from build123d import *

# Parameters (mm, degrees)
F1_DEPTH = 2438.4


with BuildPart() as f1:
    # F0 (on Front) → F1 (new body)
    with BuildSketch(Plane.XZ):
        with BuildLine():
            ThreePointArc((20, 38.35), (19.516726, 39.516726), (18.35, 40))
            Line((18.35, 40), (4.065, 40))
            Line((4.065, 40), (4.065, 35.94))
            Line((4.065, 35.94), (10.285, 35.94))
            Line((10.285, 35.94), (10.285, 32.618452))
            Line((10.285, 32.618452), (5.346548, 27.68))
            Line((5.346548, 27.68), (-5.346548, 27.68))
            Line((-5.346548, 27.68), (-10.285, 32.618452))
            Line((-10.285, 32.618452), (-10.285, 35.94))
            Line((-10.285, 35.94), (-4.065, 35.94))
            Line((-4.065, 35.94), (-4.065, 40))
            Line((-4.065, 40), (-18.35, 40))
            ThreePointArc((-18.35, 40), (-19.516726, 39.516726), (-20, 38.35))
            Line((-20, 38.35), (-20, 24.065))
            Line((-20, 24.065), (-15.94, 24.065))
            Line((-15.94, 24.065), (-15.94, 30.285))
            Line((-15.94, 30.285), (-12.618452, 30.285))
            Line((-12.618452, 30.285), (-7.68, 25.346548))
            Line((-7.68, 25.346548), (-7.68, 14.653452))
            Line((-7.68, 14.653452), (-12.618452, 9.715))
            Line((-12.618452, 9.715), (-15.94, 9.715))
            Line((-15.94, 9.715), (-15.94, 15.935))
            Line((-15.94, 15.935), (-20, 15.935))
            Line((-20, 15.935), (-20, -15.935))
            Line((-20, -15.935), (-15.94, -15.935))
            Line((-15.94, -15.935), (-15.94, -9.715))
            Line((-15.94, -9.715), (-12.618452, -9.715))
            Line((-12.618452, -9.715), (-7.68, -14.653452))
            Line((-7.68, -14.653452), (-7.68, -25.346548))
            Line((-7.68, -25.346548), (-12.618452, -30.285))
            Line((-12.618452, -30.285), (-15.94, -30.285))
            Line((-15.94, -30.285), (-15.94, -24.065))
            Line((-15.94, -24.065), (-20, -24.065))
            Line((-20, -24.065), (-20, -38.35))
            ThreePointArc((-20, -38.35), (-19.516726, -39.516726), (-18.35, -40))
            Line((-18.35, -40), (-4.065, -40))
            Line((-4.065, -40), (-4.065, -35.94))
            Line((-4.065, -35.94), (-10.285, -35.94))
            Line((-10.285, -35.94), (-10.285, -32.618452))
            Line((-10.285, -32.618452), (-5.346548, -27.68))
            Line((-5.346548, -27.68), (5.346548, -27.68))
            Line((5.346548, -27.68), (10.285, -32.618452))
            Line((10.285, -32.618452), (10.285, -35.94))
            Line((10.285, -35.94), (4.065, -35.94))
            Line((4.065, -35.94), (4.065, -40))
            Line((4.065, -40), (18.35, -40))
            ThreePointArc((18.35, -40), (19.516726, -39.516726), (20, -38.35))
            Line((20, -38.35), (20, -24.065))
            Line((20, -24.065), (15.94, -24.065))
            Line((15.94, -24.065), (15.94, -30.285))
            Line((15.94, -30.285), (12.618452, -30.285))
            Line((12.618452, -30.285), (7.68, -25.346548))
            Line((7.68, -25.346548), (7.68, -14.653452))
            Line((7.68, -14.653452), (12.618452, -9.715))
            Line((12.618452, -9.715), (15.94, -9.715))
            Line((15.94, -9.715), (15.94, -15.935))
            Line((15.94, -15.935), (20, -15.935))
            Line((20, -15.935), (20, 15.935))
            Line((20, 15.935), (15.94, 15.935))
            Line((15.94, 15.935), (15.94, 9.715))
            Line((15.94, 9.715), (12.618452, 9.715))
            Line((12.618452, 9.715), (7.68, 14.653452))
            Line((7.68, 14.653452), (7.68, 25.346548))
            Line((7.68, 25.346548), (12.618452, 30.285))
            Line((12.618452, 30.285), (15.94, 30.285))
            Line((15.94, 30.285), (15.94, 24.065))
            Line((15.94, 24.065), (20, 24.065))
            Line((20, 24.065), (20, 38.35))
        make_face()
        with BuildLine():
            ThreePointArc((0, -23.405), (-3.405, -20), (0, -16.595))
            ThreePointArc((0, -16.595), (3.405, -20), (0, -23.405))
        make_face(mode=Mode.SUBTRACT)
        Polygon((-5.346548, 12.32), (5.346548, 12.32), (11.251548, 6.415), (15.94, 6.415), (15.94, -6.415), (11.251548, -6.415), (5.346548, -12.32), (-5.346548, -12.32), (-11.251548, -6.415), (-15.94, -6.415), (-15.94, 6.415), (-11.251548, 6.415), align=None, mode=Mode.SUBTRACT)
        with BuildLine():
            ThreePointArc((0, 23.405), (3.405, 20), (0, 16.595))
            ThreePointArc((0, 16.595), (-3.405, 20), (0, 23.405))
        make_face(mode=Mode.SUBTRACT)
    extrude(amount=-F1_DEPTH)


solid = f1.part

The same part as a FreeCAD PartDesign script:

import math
import FreeCAD as App
import Part
import Sketcher
from FreeCAD import Vector
Q = App.Units.Quantity


def add_polygon(sketch, points):
    """Adds a closed chain of lines whose ends are joined by coincident constraints."""
    first, n = sketch.GeometryCount, len(points)
    for a, b in zip(points, points[1:] + points[:1]):
        sketch.addGeometry(Part.LineSegment(App.Vector(*a, 0), App.Vector(*b, 0)), False)
    for i in range(n):
        sketch.addConstraint(Sketcher.Constraint("Coincident", first + i, 2, first + (i + 1) % n, 1))

doc = App.newDocument("Part")
body = doc.addObject("PartDesign::Body", "Body")

# Sketch on XZ plane
sketch1 = doc.addObject("Sketcher::SketchObject", "Sketch")
body.addObject(sketch1)
sketch1.AttachmentSupport = (doc.XZ_Plane, [""])
sketch1.MapMode = "FlatFace"
sketch1.addGeometry(Part.ArcOfCircle(Part.Circle(Vector(18.3, 38.3, 0), Vector(0, 0, 1), 1.7), math.radians(0), math.radians(90)), False)  # 0
sketch1.addGeometry(Part.LineSegment(Vector(18.4, 40, 0), Vector(4.1, 40, 0)), False)  # 1
sketch1.addGeometry(Part.LineSegment(Vector(4.1, 40, 0), Vector(4.1, 35.9, 0)), False)  # 2
sketch1.addGeometry(Part.LineSegment(Vector(4.1, 35.9, 0), Vector(10.3, 35.9, 0)), False)  # 3
sketch1.addGeometry(Part.LineSegment(Vector(10.3, 35.9, 0), Vector(10.3, 32.6, 0)), False)  # 4
sketch1.addGeometry(Part.LineSegment(Vector(10.3, 32.6, 0), Vector(5.3, 27.7, 0)), False)  # 5
sketch1.addGeometry(Part.LineSegment(Vector(5.3, 27.7, 0), Vector(-5.3, 27.7, 0)), False)  # 6
sketch1.addGeometry(Part.LineSegment(Vector(-5.3, 27.7, 0), Vector(-10.3, 32.6, 0)), False)  # 7
sketch1.addGeometry(Part.LineSegment(Vector(-10.3, 32.6, 0), Vector(-10.3, 35.9, 0)), False)  # 8
sketch1.addGeometry(Part.LineSegment(Vector(-10.3, 35.9, 0), Vector(-4.1, 35.9, 0)), False)  # 9
sketch1.addGeometry(Part.LineSegment(Vector(-4.1, 35.9, 0), Vector(-4.1, 40, 0)), False)  # 10
sketch1.addGeometry(Part.LineSegment(Vector(-4.1, 40, 0), Vector(-18.4, 40, 0)), False)  # 11
sketch1.addGeometry(Part.ArcOfCircle(Part.Circle(Vector(-18.3, 38.3, 0), Vector(0, 0, 1), 1.7), math.radians(90), math.radians(180)), False)  # 12
sketch1.addGeometry(Part.LineSegment(Vector(-20, 38.4, 0), Vector(-20, 24.1, 0)), False)  # 13
sketch1.addGeometry(Part.LineSegment(Vector(-20, 24.1, 0), Vector(-15.9, 24.1, 0)), False)  # 14
sketch1.addGeometry(Part.LineSegment(Vector(-15.9, 24.1, 0), Vector(-15.9, 30.3, 0)), False)  # 15
sketch1.addGeometry(Part.LineSegment(Vector(-15.9, 30.3, 0), Vector(-12.6, 30.3, 0)), False)  # 16
sketch1.addGeometry(Part.LineSegment(Vector(-12.6, 30.3, 0), Vector(-7.7, 25.3, 0)), False)  # 17
sketch1.addGeometry(Part.LineSegment(Vector(-7.7, 25.3, 0), Vector(-7.7, 14.7, 0)), False)  # 18
sketch1.addGeometry(Part.LineSegment(Vector(-7.7, 14.7, 0), Vector(-12.6, 9.7, 0)), False)  # 19
sketch1.addGeometry(Part.LineSegment(Vector(-12.6, 9.7, 0), Vector(-15.9, 9.7, 0)), False)  # 20
sketch1.addGeometry(Part.LineSegment(Vector(-15.9, 9.7, 0), Vector(-15.9, 15.9, 0)), False)  # 21
sketch1.addGeometry(Part.LineSegment(Vector(-15.9, 15.9, 0), Vector(-20, 15.9, 0)), False)  # 22
sketch1.addGeometry(Part.LineSegment(Vector(-20, 15.9, 0), Vector(-20, -15.9, 0)), False)  # 23
sketch1.addGeometry(Part.LineSegment(Vector(-20, -15.9, 0), Vector(-15.9, -15.9, 0)), False)  # 24
sketch1.addGeometry(Part.LineSegment(Vector(-15.9, -15.9, 0), Vector(-15.9, -9.7, 0)), False)  # 25
sketch1.addGeometry(Part.LineSegment(Vector(-15.9, -9.7, 0), Vector(-12.6, -9.7, 0)), False)  # 26
sketch1.addGeometry(Part.LineSegment(Vector(-12.6, -9.7, 0), Vector(-7.7, -14.7, 0)), False)  # 27
sketch1.addGeometry(Part.LineSegment(Vector(-7.7, -14.7, 0), Vector(-7.7, -25.3, 0)), False)  # 28
sketch1.addGeometry(Part.LineSegment(Vector(-7.7, -25.3, 0), Vector(-12.6, -30.3, 0)), False)  # 29
sketch1.addGeometry(Part.LineSegment(Vector(-12.6, -30.3, 0), Vector(-15.9, -30.3, 0)), False)  # 30
sketch1.addGeometry(Part.LineSegment(Vector(-15.9, -30.3, 0), Vector(-15.9, -24.1, 0)), False)  # 31
sketch1.addGeometry(Part.LineSegment(Vector(-15.9, -24.1, 0), Vector(-20, -24.1, 0)), False)  # 32
sketch1.addGeometry(Part.LineSegment(Vector(-20, -24.1, 0), Vector(-20, -38.4, 0)), False)  # 33
sketch1.addGeometry(Part.ArcOfCircle(Part.Circle(Vector(-18.3, -38.3, 0), Vector(0, 0, 1), 1.7), math.radians(-180), math.radians(-90)), False)  # 34
sketch1.addGeometry(Part.LineSegment(Vector(-18.4, -40, 0), Vector(-4.1, -40, 0)), False)  # 35
sketch1.addGeometry(Part.LineSegment(Vector(-4.1, -40, 0), Vector(-4.1, -35.9, 0)), False)  # 36
sketch1.addGeometry(Part.LineSegment(Vector(-4.1, -35.9, 0), Vector(-10.3, -35.9, 0)), False)  # 37
sketch1.addGeometry(Part.LineSegment(Vector(-10.3, -35.9, 0), Vector(-10.3, -32.6, 0)), False)  # 38
sketch1.addGeometry(Part.LineSegment(Vector(-10.3, -32.6, 0), Vector(-5.3, -27.7, 0)), False)  # 39
sketch1.addGeometry(Part.LineSegment(Vector(-5.3, -27.7, 0), Vector(5.3, -27.7, 0)), False)  # 40
sketch1.addGeometry(Part.LineSegment(Vector(5.3, -27.7, 0), Vector(10.3, -32.6, 0)), False)  # 41
sketch1.addGeometry(Part.LineSegment(Vector(10.3, -32.6, 0), Vector(10.3, -35.9, 0)), False)  # 42
sketch1.addGeometry(Part.LineSegment(Vector(10.3, -35.9, 0), Vector(4.1, -35.9, 0)), False)  # 43
sketch1.addGeometry(Part.LineSegment(Vector(4.1, -35.9, 0), Vector(4.1, -40, 0)), False)  # 44
sketch1.addGeometry(Part.LineSegment(Vector(4.1, -40, 0), Vector(18.4, -40, 0)), False)  # 45
sketch1.addGeometry(Part.ArcOfCircle(Part.Circle(Vector(18.3, -38.3, 0), Vector(0, 0, 1), 1.7), math.radians(-90), math.radians(0)), False)  # 46
sketch1.addGeometry(Part.LineSegment(Vector(20, -38.4, 0), Vector(20, -24.1, 0)), False)  # 47
sketch1.addGeometry(Part.LineSegment(Vector(20, -24.1, 0), Vector(15.9, -24.1, 0)), False)  # 48
sketch1.addGeometry(Part.LineSegment(Vector(15.9, -24.1, 0), Vector(15.9, -30.3, 0)), False)  # 49
sketch1.addGeometry(Part.LineSegment(Vector(15.9, -30.3, 0), Vector(12.6, -30.3, 0)), False)  # 50
sketch1.addGeometry(Part.LineSegment(Vector(12.6, -30.3, 0), Vector(7.7, -25.3, 0)), False)  # 51
sketch1.addGeometry(Part.LineSegment(Vector(7.7, -25.3, 0), Vector(7.7, -14.7, 0)), False)  # 52
sketch1.addGeometry(Part.LineSegment(Vector(7.7, -14.7, 0), Vector(12.6, -9.7, 0)), False)  # 53
sketch1.addGeometry(Part.LineSegment(Vector(12.6, -9.7, 0), Vector(15.9, -9.7, 0)), False)  # 54
sketch1.addGeometry(Part.LineSegment(Vector(15.9, -9.7, 0), Vector(15.9, -15.9, 0)), False)  # 55
sketch1.addGeometry(Part.LineSegment(Vector(15.9, -15.9, 0), Vector(20, -15.9, 0)), False)  # 56
sketch1.addGeometry(Part.LineSegment(Vector(20, -15.9, 0), Vector(20, 15.9, 0)), False)  # 57
sketch1.addGeometry(Part.LineSegment(Vector(20, 15.9, 0), Vector(15.9, 15.9, 0)), False)  # 58
sketch1.addGeometry(Part.LineSegment(Vector(15.9, 15.9, 0), Vector(15.9, 9.7, 0)), False)  # 59
sketch1.addGeometry(Part.LineSegment(Vector(15.9, 9.7, 0), Vector(12.6, 9.7, 0)), False)  # 60
sketch1.addGeometry(Part.LineSegment(Vector(12.6, 9.7, 0), Vector(7.7, 14.7, 0)), False)  # 61
sketch1.addGeometry(Part.LineSegment(Vector(7.7, 14.7, 0), Vector(7.7, 25.3, 0)), False)  # 62
sketch1.addGeometry(Part.LineSegment(Vector(7.7, 25.3, 0), Vector(12.6, 30.3, 0)), False)  # 63
sketch1.addGeometry(Part.LineSegment(Vector(12.6, 30.3, 0), Vector(15.9, 30.3, 0)), False)  # 64
sketch1.addGeometry(Part.LineSegment(Vector(15.9, 30.3, 0), Vector(15.9, 24.1, 0)), False)  # 65
sketch1.addGeometry(Part.LineSegment(Vector(15.9, 24.1, 0), Vector(20, 24.1, 0)), False)  # 66
sketch1.addGeometry(Part.LineSegment(Vector(20, 24.1, 0), Vector(20, 38.4, 0)), False)  # 67
sketch1.addGeometry(Part.Circle(Vector(0, -20, 0), Vector(0, 0, 1), 3.4), False)  # 68
add_polygon(sketch1, [(-11.3, 6.4), (-5.3, 12.3), (5.3, 12.3), (11.3, 6.4), (15.9, 6.4), (15.9, -6.4), (11.3, -6.4), (5.3, -12.3), (-5.3, -12.3), (-11.3, -6.4), (-15.9, -6.4), (-15.9, 6.4)])  # lines 69-80
sketch1.addGeometry(Part.Circle(Vector(0, 20, 0), Vector(0, 0, 1), 3.4), False)  # 81
sketch1.addConstraint([
    Sketcher.Constraint("Tangent", 0, 2, 1, 1),
    Sketcher.Constraint("Coincident", 1, 2, 2, 1),
    Sketcher.Constraint("Coincident", 2, 2, 3, 1),
    Sketcher.Constraint("Coincident", 3, 2, 4, 1),
    Sketcher.Constraint("Coincident", 4, 2, 5, 1),
    Sketcher.Constraint("Coincident", 5, 2, 6, 1),
    Sketcher.Constraint("Coincident", 6, 2, 7, 1),
    Sketcher.Constraint("Coincident", 7, 2, 8, 1),
    Sketcher.Constraint("Coincident", 8, 2, 9, 1),
    Sketcher.Constraint("Coincident", 9, 2, 10, 1),
    Sketcher.Constraint("Coincident", 10, 2, 11, 1),
    Sketcher.Constraint("Tangent", 11, 2, 12, 1),
    Sketcher.Constraint("Tangent", 12, 2, 13, 1),
    Sketcher.Constraint("Coincident", 13, 2, 14, 1),
    Sketcher.Constraint("Coincident", 14, 2, 15, 1),
    Sketcher.Constraint("Coincident", 15, 2, 16, 1),
    Sketcher.Constraint("Coincident", 16, 2, 17, 1),
    Sketcher.Constraint("Coincident", 17, 2, 18, 1),
    Sketcher.Constraint("Coincident", 18, 2, 19, 1),
    Sketcher.Constraint("Coincident", 19, 2, 20, 1),
    Sketcher.Constraint("Coincident", 20, 2, 21, 1),
    Sketcher.Constraint("Coincident", 21, 2, 22, 1),
    Sketcher.Constraint("Coincident", 22, 2, 23, 1),
    Sketcher.Constraint("Coincident", 23, 2, 24, 1),
    Sketcher.Constraint("Coincident", 24, 2, 25, 1),
    Sketcher.Constraint("Coincident", 25, 2, 26, 1),
    Sketcher.Constraint("Coincident", 26, 2, 27, 1),
    Sketcher.Constraint("Coincident", 27, 2, 28, 1),
    Sketcher.Constraint("Coincident", 28, 2, 29, 1),
    Sketcher.Constraint("Coincident", 29, 2, 30, 1),
    Sketcher.Constraint("Coincident", 30, 2, 31, 1),
    Sketcher.Constraint("Coincident", 31, 2, 32, 1),
    Sketcher.Constraint("Coincident", 32, 2, 33, 1),
    Sketcher.Constraint("Tangent", 33, 2, 34, 1),
    Sketcher.Constraint("Tangent", 34, 2, 35, 1),
    Sketcher.Constraint("Coincident", 35, 2, 36, 1),
    Sketcher.Constraint("Coincident", 36, 2, 37, 1),
    Sketcher.Constraint("Coincident", 37, 2, 38, 1),
    Sketcher.Constraint("Coincident", 38, 2, 39, 1),
    Sketcher.Constraint("Coincident", 39, 2, 40, 1),
    Sketcher.Constraint("Coincident", 40, 2, 41, 1),
    Sketcher.Constraint("Coincident", 41, 2, 42, 1),
    Sketcher.Constraint("Coincident", 42, 2, 43, 1),
    Sketcher.Constraint("Coincident", 43, 2, 44, 1),
    Sketcher.Constraint("Coincident", 44, 2, 45, 1),
    Sketcher.Constraint("Tangent", 45, 2, 46, 1),
    Sketcher.Constraint("Tangent", 46, 2, 47, 1),
    Sketcher.Constraint("Coincident", 47, 2, 48, 1),
    Sketcher.Constraint("Coincident", 48, 2, 49, 1),
    Sketcher.Constraint("Coincident", 49, 2, 50, 1),
    Sketcher.Constraint("Coincident", 50, 2, 51, 1),
    Sketcher.Constraint("Coincident", 51, 2, 52, 1),
    Sketcher.Constraint("Coincident", 52, 2, 53, 1),
    Sketcher.Constraint("Coincident", 53, 2, 54, 1),
    Sketcher.Constraint("Coincident", 54, 2, 55, 1),
    Sketcher.Constraint("Coincident", 55, 2, 56, 1),
    Sketcher.Constraint("Coincident", 56, 2, 57, 1),
    Sketcher.Constraint("Coincident", 57, 2, 58, 1),
    Sketcher.Constraint("Coincident", 58, 2, 59, 1),
    Sketcher.Constraint("Coincident", 59, 2, 60, 1),
    Sketcher.Constraint("Coincident", 60, 2, 61, 1),
    Sketcher.Constraint("Coincident", 61, 2, 62, 1),
    Sketcher.Constraint("Coincident", 62, 2, 63, 1),
    Sketcher.Constraint("Coincident", 63, 2, 64, 1),
    Sketcher.Constraint("Coincident", 64, 2, 65, 1),
    Sketcher.Constraint("Coincident", 65, 2, 66, 1),
    Sketcher.Constraint("Coincident", 66, 2, 67, 1),
    Sketcher.Constraint("Tangent", 67, 2, 0, 1),
    Sketcher.Constraint("Horizontal", 1),
    Sketcher.Constraint("Vertical", 2),
    Sketcher.Constraint("Horizontal", 3),
    Sketcher.Constraint("Vertical", 4),
    Sketcher.Constraint("Horizontal", 6),
    Sketcher.Constraint("Vertical", 8),
    Sketcher.Constraint("Horizontal", 9),
    Sketcher.Constraint("Vertical", 10),
    Sketcher.Constraint("Horizontal", 11),
    Sketcher.Constraint("Vertical", 13),
    Sketcher.Constraint("Horizontal", 14),
    Sketcher.Constraint("Vertical", 15),
    Sketcher.Constraint("Horizontal", 16),
    Sketcher.Constraint("Vertical", 18),
    Sketcher.Constraint("Horizontal", 20),
    Sketcher.Constraint("Vertical", 21),
    Sketcher.Constraint("Horizontal", 22),
    Sketcher.Constraint("Vertical", 23),
    Sketcher.Constraint("Horizontal", 24),
    Sketcher.Constraint("Vertical", 25),
    Sketcher.Constraint("Horizontal", 26),
    Sketcher.Constraint("Vertical", 28),
    Sketcher.Constraint("Horizontal", 30),
    Sketcher.Constraint("Vertical", 31),
    Sketcher.Constraint("Horizontal", 32),
    Sketcher.Constraint("Vertical", 33),
    Sketcher.Constraint("Horizontal", 35),
    Sketcher.Constraint("Vertical", 36),
    Sketcher.Constraint("Horizontal", 37),
    Sketcher.Constraint("Vertical", 38),
    Sketcher.Constraint("Horizontal", 40),
    Sketcher.Constraint("Vertical", 42),
    Sketcher.Constraint("Horizontal", 43),
    Sketcher.Constraint("Vertical", 44),
    Sketcher.Constraint("Horizontal", 45),
    Sketcher.Constraint("Vertical", 47),
    Sketcher.Constraint("Horizontal", 48),
    Sketcher.Constraint("Vertical", 49),
    Sketcher.Constraint("Horizontal", 50),
    Sketcher.Constraint("Vertical", 52),
    Sketcher.Constraint("Horizontal", 54),
    Sketcher.Constraint("Vertical", 55),
    Sketcher.Constraint("Horizontal", 56),
    Sketcher.Constraint("Vertical", 57),
    Sketcher.Constraint("Horizontal", 58),
    Sketcher.Constraint("Vertical", 59),
    Sketcher.Constraint("Horizontal", 60),
    Sketcher.Constraint("Vertical", 62),
    Sketcher.Constraint("Horizontal", 64),
    Sketcher.Constraint("Vertical", 65),
    Sketcher.Constraint("Horizontal", 66),
    Sketcher.Constraint("Vertical", 67),
    Sketcher.Constraint("Horizontal", 70),
    Sketcher.Constraint("Horizontal", 72),
    Sketcher.Constraint("Vertical", 73),
    Sketcher.Constraint("Horizontal", 74),
    Sketcher.Constraint("Horizontal", 76),
    Sketcher.Constraint("Horizontal", 78),
    Sketcher.Constraint("Vertical", 79),
    Sketcher.Constraint("Horizontal", 80),
    Sketcher.Constraint("Equal", 0, 12),
    Sketcher.Constraint("Equal", 12, 34),
    Sketcher.Constraint("Equal", 34, 46),
    Sketcher.Constraint("Equal", 68, 81),
    Sketcher.Constraint("Symmetric", 0, 3, 34, 3, -1, 1),
    Sketcher.Constraint("Symmetric", 12, 3, 46, 3, -1, 1),
    Sketcher.Constraint("Symmetric", 68, 3, 81, 3, -1, 1),
    Sketcher.Constraint("Symmetric", 2, 2, 36, 2, -1, 1),
    Sketcher.Constraint("Symmetric", 4, 2, 38, 2, -1, 1),
    Sketcher.Constraint("Symmetric", 5, 2, 39, 2, -1, 1),
    Sketcher.Constraint("Symmetric", 7, 2, 41, 2, -1, 1),
    Sketcher.Constraint("Symmetric", 9, 2, 43, 2, -1, 1),
    Sketcher.Constraint("Symmetric", 14, 2, 48, 2, -1, 1),
    Sketcher.Constraint("Symmetric", 16, 2, 50, 2, -1, 1),
    Sketcher.Constraint("Symmetric", 17, 2, 51, 2, -1, 1),
    Sketcher.Constraint("Symmetric", 19, 2, 53, 2, -1, 1),
    Sketcher.Constraint("Symmetric", 21, 2, 55, 2, -1, 1),
    Sketcher.Constraint("Symmetric", 23, 2, 57, 2, -1, 1),
    Sketcher.Constraint("Symmetric", 25, 2, 59, 2, -1, 1),
    Sketcher.Constraint("Symmetric", 27, 2, 61, 2, -1, 1),
    Sketcher.Constraint("Symmetric", 29, 2, 63, 2, -1, 1),
    Sketcher.Constraint("Symmetric", 31, 2, 65, 2, -1, 1),
    Sketcher.Constraint("Symmetric", 69, 2, 75, 2, -1, 1),
    Sketcher.Constraint("Symmetric", 71, 2, 77, 2, -1, 1),
    Sketcher.Constraint("Symmetric", 73, 2, 79, 2, -1, 1),
    Sketcher.Constraint("Symmetric", 0, 3, 12, 3, -2),
    Sketcher.Constraint("Symmetric", 4, 2, 7, 2, -2),
    Sketcher.Constraint("Symmetric", 2, 2, 9, 2, -2),
    Sketcher.Constraint("Symmetric", 31, 2, 48, 2, -2),
    Sketcher.Constraint("Symmetric", 29, 2, 50, 2, -2),
    Sketcher.Constraint("Symmetric", 28, 2, 51, 2, -2),
    Sketcher.Constraint("Symmetric", 26, 2, 53, 2, -2),
    Sketcher.Constraint("Symmetric", 24, 2, 55, 2, -2),
    Sketcher.Constraint("Symmetric", 74, 2, 77, 2, -2),
    Sketcher.Constraint("PointOnObject", 68, 3, -2),
    Sketcher.Constraint("Perpendicular", 5, 7),
    Sketcher.Constraint("Parallel", 7, 17),
    Sketcher.Constraint("Perpendicular", 17, 19),
    Sketcher.Constraint("Perpendicular", 19, 27),
    Sketcher.Constraint("Perpendicular", 27, 29),
    Sketcher.Constraint("Perpendicular", 39, 41),
    Sketcher.Constraint("Perpendicular", 51, 53),
    Sketcher.Constraint("Perpendicular", 53, 61),
    Sketcher.Constraint("Perpendicular", 61, 63),
    Sketcher.Constraint("Parallel", 63, 69),
    Sketcher.Constraint("Perpendicular", 69, 71),
    Sketcher.Constraint("Perpendicular", 71, 75),
    Sketcher.Constraint("Perpendicular", 75, 77),
    Sketcher.Constraint("Vertical", 16, 2, 19, 2),
    Sketcher.Constraint("Vertical", 15, 2, 20, 2),
    Sketcher.Constraint("Vertical", 13, 2, 22, 2),
    Sketcher.Constraint("Vertical", 39, 2, 69, 2),
    Sketcher.Constraint("Vertical", 65, 2, 72, 2),
    Sketcher.Constraint("Equal", 66, 2),
    Sketcher.Constraint("Equal", 64, 4),
    Sketcher.Constraint("Equal", 45, 13),
    Sketcher.Constraint("Equal", 43, 15),
    Sketcher.Constraint("Equal", 76, 18),
    Sketcher.Constraint("Equal", 15, 21),
    Sketcher.Constraint("Equal", 7, 17),
    Sketcher.Constraint("Diameter", 68, Q("6.81 mm")),
    Sketcher.Constraint("Radius", 0, Q("1.650001 mm")),
    Sketcher.Constraint("DistanceY", 68, 3, -1, 1, Q("20 mm")),
    Sketcher.Constraint("DistanceY", -1, 1, 0, 2, Q("40 mm")),
    Sketcher.Constraint("DistanceX", 12, 2, -1, 1, Q("20 mm")),
    Sketcher.Constraint("DistanceX", 3, 1, 3, 2, Q("6.22 mm")),
    Sketcher.Constraint("DistanceX", 14, 1, 14, 2, Q("4.06 mm")),
    Sketcher.Constraint("DistanceY", 23, 2, 23, 1, Q("31.87 mm")),
    Sketcher.Constraint("DistanceY", 73, 2, 73, 1, Q("12.83 mm")),
    Sketcher.Constraint("DistanceY", -1, 1, 5, 2, Q("27.68 mm")),
    Sketcher.Constraint("DistanceY", -1, 1, 69, 2, Q("12.32 mm")),
    Sketcher.Constraint("DistanceX", 16, 1, 16, 2, Q("3.321548 mm")),
])
pad1 = doc.addObject("PartDesign::Pad", "Pad")
body.addObject(pad1)
pad1.Profile = sketch1
pad1.Length = 2438.4
pad1.Reversed = True

doc.recompute()
